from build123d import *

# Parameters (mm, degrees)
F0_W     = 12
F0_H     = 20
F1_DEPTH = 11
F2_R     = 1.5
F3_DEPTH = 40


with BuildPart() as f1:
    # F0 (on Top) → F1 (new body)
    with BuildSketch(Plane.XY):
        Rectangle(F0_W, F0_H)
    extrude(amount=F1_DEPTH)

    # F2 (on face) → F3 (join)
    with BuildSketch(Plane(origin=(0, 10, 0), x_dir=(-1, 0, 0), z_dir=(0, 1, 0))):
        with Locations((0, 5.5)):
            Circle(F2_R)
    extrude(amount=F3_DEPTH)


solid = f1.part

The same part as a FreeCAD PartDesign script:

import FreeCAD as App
import Part
import Sketcher
Q = App.Units.Quantity

doc = App.newDocument("Part")
params = doc.addObject("Spreadsheet::Sheet", "Params")
for row, (alias, value) in enumerate([
    ("sketch1_width", "12 mm"),
    ("sketch1_height", "20 mm"),
    ("pad1_length", "11 mm"),
    ("sketch2_diameter", "3 mm"),
    ("pad2_length", "40 mm"),
], start=1):
    params.set(f"A{row}", alias)
    params.set(f"B{row}", "=" + value)
    params.setAlias(f"B{row}", alias)

body = doc.addObject("PartDesign::Body", "Body")

sketch1 = body.newObject("Sketcher::SketchObject", "Sketch")
sketch1.AttachmentSupport = (doc.getObject("XY_Plane"), [""])
sketch1.MapMode = "FlatFace"
sketch1.addGeometry(Part.LineSegment(App.Vector(-6, 10, 0), App.Vector(-6, -10, 0)), False)
sketch1.addGeometry(Part.LineSegment(App.Vector(-6, -10, 0), App.Vector(6, -10, 0)), False)
sketch1.addGeometry(Part.LineSegment(App.Vector(6, -10, 0), App.Vector(6, 10, 0)), False)
sketch1.addGeometry(Part.LineSegment(App.Vector(6, 10, 0), App.Vector(-6, 10, 0)), False)
sketch1.addConstraint(Sketcher.Constraint("Coincident", 0, 2, 1, 1))
sketch1.addConstraint(Sketcher.Constraint("Coincident", 1, 2, 2, 1))
sketch1.addConstraint(Sketcher.Constraint("Coincident", 2, 2, 3, 1))
sketch1.addConstraint(Sketcher.Constraint("Coincident", 3, 2, 0, 1))
sketch1.addConstraint(Sketcher.Constraint("Vertical", 0))
sketch1.addConstraint(Sketcher.Constraint("Horizontal", 1))
sketch1.addConstraint(Sketcher.Constraint("Vertical", 2))
sketch1.addConstraint(Sketcher.Constraint("Horizontal", 3))
sketch1.addConstraint(Sketcher.Constraint("Symmetric", 0, 2, 2, 2, -1, 1))
sketch1.addConstraint(Sketcher.Constraint("DistanceX", 1, 1, 1, 2, Q("12 mm")))
sketch1.addConstraint(Sketcher.Constraint("DistanceY", 0, 2, 0, 1, Q("20 mm")))
sketch1.setExpression("Constraints[9]", "Params.sketch1_width")
sketch1.setExpression("Constraints[10]", "Params.sketch1_height")
pad1 = body.newObject("PartDesign::Pad", "Pad")
pad1.Profile = sketch1
pad1.setExpression("Length", "Params.pad1_length")

sketch2 = body.newObject("Sketcher::SketchObject", "Sketch001")
sketch2.AttachmentSupport = (doc.getObject("XZ_Plane"), [""])
sketch2.MapMode = "FlatFace"
sketch2.AttachmentOffset = App.Placement(App.Vector(0, 0, -10), App.Rotation())
sketch2.addGeometry(Part.Circle(App.Vector(0, 5.5, 0), App.Vector(0, 0, 1), 1.5), False)
sketch2.addConstraint(Sketcher.Constraint("PointOnObject", 0, 3, -2))
sketch2.addConstraint(Sketcher.Constraint("Diameter", 0, Q("3 mm")))
sketch2.addConstraint(Sketcher.Constraint("DistanceY", -1, 1, 0, 3, Q("5.5 mm")))
sketch2.setExpression("Constraints[1]", "Params.sketch2_diameter")
pad2 = body.newObject("PartDesign::Pad", "Pad001")
pad2.Profile = sketch2
pad2.setExpression("Length", "Params.pad2_length")
pad2.Reversed = True

doc.recompute()
